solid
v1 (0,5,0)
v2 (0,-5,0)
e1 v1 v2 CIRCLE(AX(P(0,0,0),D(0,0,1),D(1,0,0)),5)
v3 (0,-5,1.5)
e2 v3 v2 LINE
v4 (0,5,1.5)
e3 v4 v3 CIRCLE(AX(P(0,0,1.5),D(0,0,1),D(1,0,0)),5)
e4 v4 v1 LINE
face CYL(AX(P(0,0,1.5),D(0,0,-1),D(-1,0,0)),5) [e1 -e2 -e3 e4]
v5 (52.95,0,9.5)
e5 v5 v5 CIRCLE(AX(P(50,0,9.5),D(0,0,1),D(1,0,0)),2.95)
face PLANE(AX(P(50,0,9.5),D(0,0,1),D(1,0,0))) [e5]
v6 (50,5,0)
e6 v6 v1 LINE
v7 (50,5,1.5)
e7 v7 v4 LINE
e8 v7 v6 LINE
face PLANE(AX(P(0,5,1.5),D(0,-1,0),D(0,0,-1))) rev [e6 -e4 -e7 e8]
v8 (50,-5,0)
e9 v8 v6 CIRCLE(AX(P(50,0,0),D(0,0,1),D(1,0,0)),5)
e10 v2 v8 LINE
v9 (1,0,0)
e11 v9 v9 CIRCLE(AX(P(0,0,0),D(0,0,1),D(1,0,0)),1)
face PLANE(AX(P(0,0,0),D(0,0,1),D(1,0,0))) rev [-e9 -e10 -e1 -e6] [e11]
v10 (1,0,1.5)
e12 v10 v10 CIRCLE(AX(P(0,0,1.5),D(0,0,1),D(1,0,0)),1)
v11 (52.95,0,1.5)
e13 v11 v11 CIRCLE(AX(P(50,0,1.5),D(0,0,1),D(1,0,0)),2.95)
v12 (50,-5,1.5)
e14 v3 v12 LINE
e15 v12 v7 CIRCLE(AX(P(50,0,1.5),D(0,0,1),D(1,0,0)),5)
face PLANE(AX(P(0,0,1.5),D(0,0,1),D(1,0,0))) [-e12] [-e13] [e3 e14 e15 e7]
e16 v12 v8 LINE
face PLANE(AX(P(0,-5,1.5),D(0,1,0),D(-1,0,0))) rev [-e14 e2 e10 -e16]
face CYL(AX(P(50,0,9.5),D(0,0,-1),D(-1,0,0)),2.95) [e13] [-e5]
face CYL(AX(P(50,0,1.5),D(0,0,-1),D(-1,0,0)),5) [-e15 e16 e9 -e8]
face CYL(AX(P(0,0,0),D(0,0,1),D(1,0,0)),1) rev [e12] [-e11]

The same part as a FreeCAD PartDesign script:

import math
import FreeCAD as App
import Part
import Sketcher
from FreeCAD import Vector

doc = App.newDocument("Part")
params = doc.addObject("Spreadsheet::Sheet", "Params")
for row, (alias, value) in enumerate([
    ("sketch1_radius", "5 mm"),
    ("sketch1_width", "50 mm"),
    ("pad1_length", "1.5 mm"),
    ("sketch2_diameter", "2 mm"),
    ("sketch3_diameter", "5.9 mm"),
    ("pad2_length", "8 mm"),
], start=1):
    params.set(f"A{row}", alias)
    params.set(f"B{row}", "=" + value)
    params.setAlias(f"B{row}", alias)

body = doc.addObject("PartDesign::Body", "Body")

sketch1 = body.newObject("Sketcher::SketchObject", "Sketch")
sketch1.AttachmentSupport = (doc.getObject("XY_Plane"), [""])
sketch1.MapMode = "FlatFace"
sketch1.addGeometry([
    Part.LineSegment(Vector(50, 5, 0), Vector(0, 5, 0)),
    Part.ArcOfCircle(Part.Circle(Vector(0, 0, 0), Vector(0, 0, 1), 5), math.radians(90), math.radians(270)),
    Part.LineSegment(Vector(0, -5, 0), Vector(50, -5, 0)),
    Part.ArcOfCircle(Part.Circle(Vector(50, 0, 0), Vector(0, 0, 1), 5), math.radians(-90), math.radians(90)),
], False)
sketch1.addConstraint([
    Sketcher.Constraint("Tangent", 0, 2, 1, 1),
    Sketcher.Constraint("Tangent", 1, 2, 2, 1),
    Sketcher.Constraint("Tangent", 2, 2, 3, 1),
    Sketcher.Constraint("Tangent", 3, 2, 0, 1),
    Sketcher.Constraint("Horizontal", 0),
    Sketcher.Constraint("Horizontal", 2),
    Sketcher.Constraint("Coincident", 1, 3, -1, 1),
    Sketcher.Constraint("Radius", 1, 5.0),
    Sketcher.Constraint("DistanceX", 0, 2, 0, 1, 50.0),
])
sketch1.setExpression("Constraints[7]", "Params.sketch1_radius")
sketch1.setExpression("Constraints[8]", "Params.sketch1_width")
pad1 = body.newObject("PartDesign::Pad", "Pad")
pad1.Profile = sketch1
pad1.setExpression("Length", "Params.pad1_length")

sketch2 = body.newObject("Sketcher::SketchObject", "Sketch001")
sketch2.AttachmentSupport = (doc.getObject("XY_Plane"), [""])
sketch2.MapMode = "FlatFace"
sketch2.AttachmentOffset = App.Placement(Vector(0, 0, 1.5), App.Rotation())
sketch2.addGeometry(Part.Circle(Vector(0, 0, 0), Vector(0, 0, 1), 1), False)
sketch2.addConstraint([
    Sketcher.Constraint("Coincident", 0, 3, -1, 1),
    Sketcher.Constraint("Diameter", 0, 2.0),
])
sketch2.setExpression("Constraints[1]", "Params.sketch2_diameter")
pocket1 = body.newObject("PartDesign::Pocket", "Pocket")
pocket1.Profile = sketch2
pocket1.Type = "ThroughAll"

sketch3 = body.newObject("Sketcher::SketchObject", "Sketch002")
sketch3.AttachmentSupport = (doc.getObject("XY_Plane"), [""])
sketch3.MapMode = "FlatFace"
sketch3.AttachmentOffset = App.Placement(Vector(0, 0, 1.5), App.Rotation())
sketch3.addGeometry(Part.Circle(Vector(50, 0, 0), Vector(0, 0, 1), 2.95), False)
sketch3.addConstraint([
    Sketcher.Constraint("PointOnObject", 0, 3, -1),
    Sketcher.Constraint("Diameter", 0, 5.9),
    Sketcher.Constraint("DistanceX", -1, 1, 0, 3, 50.0),
])
sketch3.setExpression("Constraints[1]", "Params.sketch3_diameter")
pad2 = body.newObject("PartDesign::Pad", "Pad001")
pad2.Profile = sketch3
pad2.setExpression("Length", "Params.pad2_length")

doc.recompute()
